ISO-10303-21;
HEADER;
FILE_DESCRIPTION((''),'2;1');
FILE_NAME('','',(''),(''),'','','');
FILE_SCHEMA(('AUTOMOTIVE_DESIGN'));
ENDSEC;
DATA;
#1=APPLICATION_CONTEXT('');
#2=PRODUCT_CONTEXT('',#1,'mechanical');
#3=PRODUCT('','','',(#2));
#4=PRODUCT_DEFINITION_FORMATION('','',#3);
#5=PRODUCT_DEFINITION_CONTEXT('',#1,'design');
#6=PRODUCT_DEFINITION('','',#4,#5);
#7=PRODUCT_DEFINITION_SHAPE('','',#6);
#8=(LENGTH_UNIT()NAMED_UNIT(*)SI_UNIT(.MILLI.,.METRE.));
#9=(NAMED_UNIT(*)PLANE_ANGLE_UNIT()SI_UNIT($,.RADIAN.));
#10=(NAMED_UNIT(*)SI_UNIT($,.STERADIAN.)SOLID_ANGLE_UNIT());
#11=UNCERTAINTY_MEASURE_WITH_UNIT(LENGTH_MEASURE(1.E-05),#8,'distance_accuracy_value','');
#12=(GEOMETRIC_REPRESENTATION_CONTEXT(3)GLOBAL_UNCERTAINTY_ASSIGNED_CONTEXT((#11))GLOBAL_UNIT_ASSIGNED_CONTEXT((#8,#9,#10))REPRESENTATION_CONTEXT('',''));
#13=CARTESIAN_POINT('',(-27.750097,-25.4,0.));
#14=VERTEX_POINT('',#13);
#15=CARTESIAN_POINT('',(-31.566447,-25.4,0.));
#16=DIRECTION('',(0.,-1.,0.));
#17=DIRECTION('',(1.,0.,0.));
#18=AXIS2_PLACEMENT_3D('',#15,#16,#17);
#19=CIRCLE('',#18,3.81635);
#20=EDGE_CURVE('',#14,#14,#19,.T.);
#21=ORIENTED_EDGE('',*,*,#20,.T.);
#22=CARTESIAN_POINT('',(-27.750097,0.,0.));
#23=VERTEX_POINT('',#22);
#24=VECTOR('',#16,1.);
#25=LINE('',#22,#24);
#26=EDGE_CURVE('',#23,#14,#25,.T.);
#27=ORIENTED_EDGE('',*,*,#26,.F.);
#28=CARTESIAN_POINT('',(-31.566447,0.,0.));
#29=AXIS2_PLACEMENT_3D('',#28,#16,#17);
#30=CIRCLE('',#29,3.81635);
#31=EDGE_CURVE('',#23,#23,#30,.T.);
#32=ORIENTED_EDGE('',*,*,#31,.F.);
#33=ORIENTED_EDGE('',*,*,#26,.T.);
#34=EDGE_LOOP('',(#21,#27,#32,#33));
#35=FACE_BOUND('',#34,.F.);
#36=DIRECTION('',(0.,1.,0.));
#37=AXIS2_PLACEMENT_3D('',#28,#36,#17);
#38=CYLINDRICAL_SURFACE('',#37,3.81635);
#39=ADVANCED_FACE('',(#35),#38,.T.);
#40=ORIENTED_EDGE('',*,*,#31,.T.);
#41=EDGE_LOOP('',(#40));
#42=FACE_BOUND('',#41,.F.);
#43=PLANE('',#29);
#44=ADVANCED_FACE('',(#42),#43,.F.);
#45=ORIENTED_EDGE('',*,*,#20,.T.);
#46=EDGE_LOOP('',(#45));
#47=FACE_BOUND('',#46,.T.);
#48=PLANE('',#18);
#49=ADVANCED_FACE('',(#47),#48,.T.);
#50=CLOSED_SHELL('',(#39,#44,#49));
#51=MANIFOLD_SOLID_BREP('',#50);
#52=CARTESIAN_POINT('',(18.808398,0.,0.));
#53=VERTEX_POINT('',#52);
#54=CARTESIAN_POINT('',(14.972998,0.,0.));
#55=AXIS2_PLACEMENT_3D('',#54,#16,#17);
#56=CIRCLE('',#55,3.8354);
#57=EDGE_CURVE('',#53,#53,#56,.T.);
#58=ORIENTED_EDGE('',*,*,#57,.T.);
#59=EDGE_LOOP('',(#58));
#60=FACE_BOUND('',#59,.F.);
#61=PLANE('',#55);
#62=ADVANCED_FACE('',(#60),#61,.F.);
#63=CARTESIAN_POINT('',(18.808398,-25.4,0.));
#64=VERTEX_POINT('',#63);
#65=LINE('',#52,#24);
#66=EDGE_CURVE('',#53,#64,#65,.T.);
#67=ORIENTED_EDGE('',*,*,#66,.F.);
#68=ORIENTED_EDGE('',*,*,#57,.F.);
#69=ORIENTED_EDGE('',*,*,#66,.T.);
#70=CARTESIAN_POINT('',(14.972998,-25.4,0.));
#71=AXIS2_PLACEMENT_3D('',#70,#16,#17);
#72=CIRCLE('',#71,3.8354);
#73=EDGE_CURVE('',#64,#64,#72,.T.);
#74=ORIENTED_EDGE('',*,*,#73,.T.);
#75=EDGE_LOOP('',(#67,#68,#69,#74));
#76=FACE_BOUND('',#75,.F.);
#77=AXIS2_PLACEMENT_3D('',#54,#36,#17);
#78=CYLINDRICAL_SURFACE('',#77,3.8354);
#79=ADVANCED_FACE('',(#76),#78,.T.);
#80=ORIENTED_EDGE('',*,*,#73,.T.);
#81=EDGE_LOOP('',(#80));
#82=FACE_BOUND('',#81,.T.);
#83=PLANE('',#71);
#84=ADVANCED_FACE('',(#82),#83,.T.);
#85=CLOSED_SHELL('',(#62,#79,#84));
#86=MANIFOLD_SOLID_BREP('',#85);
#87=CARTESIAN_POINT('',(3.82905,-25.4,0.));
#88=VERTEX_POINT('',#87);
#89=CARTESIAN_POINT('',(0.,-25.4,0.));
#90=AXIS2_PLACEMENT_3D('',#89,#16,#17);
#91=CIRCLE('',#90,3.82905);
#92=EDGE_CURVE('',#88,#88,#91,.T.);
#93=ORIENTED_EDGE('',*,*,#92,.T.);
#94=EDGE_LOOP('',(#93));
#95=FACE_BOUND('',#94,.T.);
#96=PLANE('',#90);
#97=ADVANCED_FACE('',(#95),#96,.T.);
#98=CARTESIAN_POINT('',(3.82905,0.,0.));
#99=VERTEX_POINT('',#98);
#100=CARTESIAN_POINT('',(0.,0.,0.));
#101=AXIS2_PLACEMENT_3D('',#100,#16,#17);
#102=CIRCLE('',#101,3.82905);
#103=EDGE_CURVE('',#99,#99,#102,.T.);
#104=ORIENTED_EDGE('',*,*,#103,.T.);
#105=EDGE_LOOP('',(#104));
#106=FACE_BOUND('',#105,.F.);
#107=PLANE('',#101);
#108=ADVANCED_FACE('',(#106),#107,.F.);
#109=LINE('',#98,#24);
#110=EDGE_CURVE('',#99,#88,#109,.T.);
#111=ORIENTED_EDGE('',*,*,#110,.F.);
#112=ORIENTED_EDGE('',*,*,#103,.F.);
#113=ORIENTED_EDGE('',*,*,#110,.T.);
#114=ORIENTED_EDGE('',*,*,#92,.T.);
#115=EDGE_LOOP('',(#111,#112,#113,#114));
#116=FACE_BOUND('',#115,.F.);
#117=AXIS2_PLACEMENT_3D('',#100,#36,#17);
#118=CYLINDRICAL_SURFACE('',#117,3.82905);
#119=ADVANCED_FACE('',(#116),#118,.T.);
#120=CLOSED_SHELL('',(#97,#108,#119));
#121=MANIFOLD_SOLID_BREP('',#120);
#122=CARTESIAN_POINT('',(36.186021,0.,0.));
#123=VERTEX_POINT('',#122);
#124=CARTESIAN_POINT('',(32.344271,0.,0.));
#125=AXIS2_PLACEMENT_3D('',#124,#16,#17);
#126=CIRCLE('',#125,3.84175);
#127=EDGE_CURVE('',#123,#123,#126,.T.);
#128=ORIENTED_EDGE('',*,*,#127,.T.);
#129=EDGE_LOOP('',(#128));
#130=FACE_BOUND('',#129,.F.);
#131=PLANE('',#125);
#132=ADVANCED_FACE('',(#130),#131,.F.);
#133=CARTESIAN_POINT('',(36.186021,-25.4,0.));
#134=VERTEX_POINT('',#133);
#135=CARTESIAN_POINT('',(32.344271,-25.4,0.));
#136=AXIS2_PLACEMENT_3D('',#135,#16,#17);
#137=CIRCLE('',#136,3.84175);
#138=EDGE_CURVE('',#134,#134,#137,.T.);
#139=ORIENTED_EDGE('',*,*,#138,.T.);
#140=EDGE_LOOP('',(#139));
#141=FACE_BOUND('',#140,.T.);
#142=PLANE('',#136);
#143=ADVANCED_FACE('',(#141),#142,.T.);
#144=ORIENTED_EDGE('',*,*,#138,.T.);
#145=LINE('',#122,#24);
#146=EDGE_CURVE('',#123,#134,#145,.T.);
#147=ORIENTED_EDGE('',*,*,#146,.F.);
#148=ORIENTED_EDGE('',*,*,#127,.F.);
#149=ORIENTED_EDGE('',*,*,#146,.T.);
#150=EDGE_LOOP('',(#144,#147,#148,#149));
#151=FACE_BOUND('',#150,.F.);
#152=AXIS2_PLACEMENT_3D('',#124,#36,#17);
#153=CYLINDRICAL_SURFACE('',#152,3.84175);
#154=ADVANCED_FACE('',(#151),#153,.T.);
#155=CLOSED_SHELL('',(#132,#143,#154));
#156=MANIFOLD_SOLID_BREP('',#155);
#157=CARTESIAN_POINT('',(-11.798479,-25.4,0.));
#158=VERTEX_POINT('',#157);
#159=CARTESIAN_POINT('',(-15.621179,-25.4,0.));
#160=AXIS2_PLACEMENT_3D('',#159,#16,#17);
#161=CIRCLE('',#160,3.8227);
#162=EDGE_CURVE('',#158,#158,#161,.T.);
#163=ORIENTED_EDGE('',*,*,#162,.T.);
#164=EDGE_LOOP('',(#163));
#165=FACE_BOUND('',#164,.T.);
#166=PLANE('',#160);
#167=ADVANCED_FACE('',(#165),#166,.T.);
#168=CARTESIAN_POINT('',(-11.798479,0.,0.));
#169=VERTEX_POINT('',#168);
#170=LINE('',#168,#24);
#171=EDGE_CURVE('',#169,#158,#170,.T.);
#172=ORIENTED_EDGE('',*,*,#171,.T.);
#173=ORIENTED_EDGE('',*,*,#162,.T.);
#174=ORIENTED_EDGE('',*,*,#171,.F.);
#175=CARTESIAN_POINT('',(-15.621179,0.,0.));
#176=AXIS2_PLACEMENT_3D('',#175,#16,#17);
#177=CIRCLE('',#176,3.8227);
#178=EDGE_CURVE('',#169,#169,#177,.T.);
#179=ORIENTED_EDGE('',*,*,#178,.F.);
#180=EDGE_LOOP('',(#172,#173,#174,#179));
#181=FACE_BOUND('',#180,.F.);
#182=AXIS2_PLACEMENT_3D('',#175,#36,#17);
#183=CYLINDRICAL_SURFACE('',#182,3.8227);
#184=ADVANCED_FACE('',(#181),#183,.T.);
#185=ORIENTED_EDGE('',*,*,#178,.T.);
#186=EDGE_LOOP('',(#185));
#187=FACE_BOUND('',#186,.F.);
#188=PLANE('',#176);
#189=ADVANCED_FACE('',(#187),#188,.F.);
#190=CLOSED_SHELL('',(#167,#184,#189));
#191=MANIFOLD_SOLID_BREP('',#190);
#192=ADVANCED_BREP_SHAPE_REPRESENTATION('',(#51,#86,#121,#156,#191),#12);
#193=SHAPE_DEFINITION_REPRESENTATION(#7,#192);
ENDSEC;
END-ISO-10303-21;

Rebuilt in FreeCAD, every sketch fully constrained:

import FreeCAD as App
import Part
import Sketcher
from FreeCAD import Vector
Q = App.Units.Quantity

doc = App.newDocument("Part")
body = doc.addObject("PartDesign::Body", "Body")
body.AllowCompound = True

# Sketch on XZ plane
sketch1 = body.newObject("Sketcher::SketchObject", "Sketch")
sketch1.AttachmentSupport = (doc.getObject("XZ_Plane"), [""])
sketch1.MapMode = "FlatFace"
sketch1.addGeometry(Part.Circle(Vector(-31.566447, 0, 0), Vector(0, 0, 1), 3.81635), False)
sketch1.addGeometry(Part.Circle(Vector(-15.621179, 0, 0), Vector(0, 0, 1), 3.8227), False)
sketch1.addGeometry(Part.Circle(Vector(0, 0, 0), Vector(0, 0, 1), 3.82905), False)
sketch1.addGeometry(Part.Circle(Vector(14.972998, 0, 0), Vector(0, 0, 1), 3.8354), False)
sketch1.addGeometry(Part.Circle(Vector(32.344271, 0, 0), Vector(0, 0, 1), 3.84175), False)
sketch1.addConstraint(Sketcher.Constraint("Coincident", 2, 3, -1, 1))
sketch1.addConstraint(Sketcher.Constraint("PointOnObject", 0, 3, -1))
sketch1.addConstraint(Sketcher.Constraint("PointOnObject", 1, 3, -1))
sketch1.addConstraint(Sketcher.Constraint("PointOnObject", 3, 3, -1))
sketch1.addConstraint(Sketcher.Constraint("PointOnObject", 4, 3, -1))
sketch1.addConstraint(Sketcher.Constraint("Diameter", 1, Q("0.301 in")))
sketch1.addConstraint(Sketcher.Constraint("Diameter", 3, Q("0.302 in")))
sketch1.addConstraint(Sketcher.Constraint("Diameter", 0, Q("0.3005 in")))
sketch1.addConstraint(Sketcher.Constraint("Diameter", 2, Q("0.3015 in")))
sketch1.addConstraint(Sketcher.Constraint("Diameter", 4, Q("0.3025 in")))
sketch1.addConstraint(Sketcher.Constraint("DistanceX", 1, 3, -1, 1, 15.621179))
sketch1.addConstraint(Sketcher.Constraint("DistanceX", -1, 1, 4, 3, 32.344271))
sketch1.addConstraint(Sketcher.Constraint("DistanceX", 0, 3, 4, 3, 63.910718))
sketch1.addConstraint(Sketcher.Constraint("DistanceX", -1, 1, 3, 3, 14.972998))
pad1 = body.newObject("PartDesign::Pad", "Pad")
pad1.Profile = sketch1
pad1.Length = Q("1 in")

doc.recompute()
